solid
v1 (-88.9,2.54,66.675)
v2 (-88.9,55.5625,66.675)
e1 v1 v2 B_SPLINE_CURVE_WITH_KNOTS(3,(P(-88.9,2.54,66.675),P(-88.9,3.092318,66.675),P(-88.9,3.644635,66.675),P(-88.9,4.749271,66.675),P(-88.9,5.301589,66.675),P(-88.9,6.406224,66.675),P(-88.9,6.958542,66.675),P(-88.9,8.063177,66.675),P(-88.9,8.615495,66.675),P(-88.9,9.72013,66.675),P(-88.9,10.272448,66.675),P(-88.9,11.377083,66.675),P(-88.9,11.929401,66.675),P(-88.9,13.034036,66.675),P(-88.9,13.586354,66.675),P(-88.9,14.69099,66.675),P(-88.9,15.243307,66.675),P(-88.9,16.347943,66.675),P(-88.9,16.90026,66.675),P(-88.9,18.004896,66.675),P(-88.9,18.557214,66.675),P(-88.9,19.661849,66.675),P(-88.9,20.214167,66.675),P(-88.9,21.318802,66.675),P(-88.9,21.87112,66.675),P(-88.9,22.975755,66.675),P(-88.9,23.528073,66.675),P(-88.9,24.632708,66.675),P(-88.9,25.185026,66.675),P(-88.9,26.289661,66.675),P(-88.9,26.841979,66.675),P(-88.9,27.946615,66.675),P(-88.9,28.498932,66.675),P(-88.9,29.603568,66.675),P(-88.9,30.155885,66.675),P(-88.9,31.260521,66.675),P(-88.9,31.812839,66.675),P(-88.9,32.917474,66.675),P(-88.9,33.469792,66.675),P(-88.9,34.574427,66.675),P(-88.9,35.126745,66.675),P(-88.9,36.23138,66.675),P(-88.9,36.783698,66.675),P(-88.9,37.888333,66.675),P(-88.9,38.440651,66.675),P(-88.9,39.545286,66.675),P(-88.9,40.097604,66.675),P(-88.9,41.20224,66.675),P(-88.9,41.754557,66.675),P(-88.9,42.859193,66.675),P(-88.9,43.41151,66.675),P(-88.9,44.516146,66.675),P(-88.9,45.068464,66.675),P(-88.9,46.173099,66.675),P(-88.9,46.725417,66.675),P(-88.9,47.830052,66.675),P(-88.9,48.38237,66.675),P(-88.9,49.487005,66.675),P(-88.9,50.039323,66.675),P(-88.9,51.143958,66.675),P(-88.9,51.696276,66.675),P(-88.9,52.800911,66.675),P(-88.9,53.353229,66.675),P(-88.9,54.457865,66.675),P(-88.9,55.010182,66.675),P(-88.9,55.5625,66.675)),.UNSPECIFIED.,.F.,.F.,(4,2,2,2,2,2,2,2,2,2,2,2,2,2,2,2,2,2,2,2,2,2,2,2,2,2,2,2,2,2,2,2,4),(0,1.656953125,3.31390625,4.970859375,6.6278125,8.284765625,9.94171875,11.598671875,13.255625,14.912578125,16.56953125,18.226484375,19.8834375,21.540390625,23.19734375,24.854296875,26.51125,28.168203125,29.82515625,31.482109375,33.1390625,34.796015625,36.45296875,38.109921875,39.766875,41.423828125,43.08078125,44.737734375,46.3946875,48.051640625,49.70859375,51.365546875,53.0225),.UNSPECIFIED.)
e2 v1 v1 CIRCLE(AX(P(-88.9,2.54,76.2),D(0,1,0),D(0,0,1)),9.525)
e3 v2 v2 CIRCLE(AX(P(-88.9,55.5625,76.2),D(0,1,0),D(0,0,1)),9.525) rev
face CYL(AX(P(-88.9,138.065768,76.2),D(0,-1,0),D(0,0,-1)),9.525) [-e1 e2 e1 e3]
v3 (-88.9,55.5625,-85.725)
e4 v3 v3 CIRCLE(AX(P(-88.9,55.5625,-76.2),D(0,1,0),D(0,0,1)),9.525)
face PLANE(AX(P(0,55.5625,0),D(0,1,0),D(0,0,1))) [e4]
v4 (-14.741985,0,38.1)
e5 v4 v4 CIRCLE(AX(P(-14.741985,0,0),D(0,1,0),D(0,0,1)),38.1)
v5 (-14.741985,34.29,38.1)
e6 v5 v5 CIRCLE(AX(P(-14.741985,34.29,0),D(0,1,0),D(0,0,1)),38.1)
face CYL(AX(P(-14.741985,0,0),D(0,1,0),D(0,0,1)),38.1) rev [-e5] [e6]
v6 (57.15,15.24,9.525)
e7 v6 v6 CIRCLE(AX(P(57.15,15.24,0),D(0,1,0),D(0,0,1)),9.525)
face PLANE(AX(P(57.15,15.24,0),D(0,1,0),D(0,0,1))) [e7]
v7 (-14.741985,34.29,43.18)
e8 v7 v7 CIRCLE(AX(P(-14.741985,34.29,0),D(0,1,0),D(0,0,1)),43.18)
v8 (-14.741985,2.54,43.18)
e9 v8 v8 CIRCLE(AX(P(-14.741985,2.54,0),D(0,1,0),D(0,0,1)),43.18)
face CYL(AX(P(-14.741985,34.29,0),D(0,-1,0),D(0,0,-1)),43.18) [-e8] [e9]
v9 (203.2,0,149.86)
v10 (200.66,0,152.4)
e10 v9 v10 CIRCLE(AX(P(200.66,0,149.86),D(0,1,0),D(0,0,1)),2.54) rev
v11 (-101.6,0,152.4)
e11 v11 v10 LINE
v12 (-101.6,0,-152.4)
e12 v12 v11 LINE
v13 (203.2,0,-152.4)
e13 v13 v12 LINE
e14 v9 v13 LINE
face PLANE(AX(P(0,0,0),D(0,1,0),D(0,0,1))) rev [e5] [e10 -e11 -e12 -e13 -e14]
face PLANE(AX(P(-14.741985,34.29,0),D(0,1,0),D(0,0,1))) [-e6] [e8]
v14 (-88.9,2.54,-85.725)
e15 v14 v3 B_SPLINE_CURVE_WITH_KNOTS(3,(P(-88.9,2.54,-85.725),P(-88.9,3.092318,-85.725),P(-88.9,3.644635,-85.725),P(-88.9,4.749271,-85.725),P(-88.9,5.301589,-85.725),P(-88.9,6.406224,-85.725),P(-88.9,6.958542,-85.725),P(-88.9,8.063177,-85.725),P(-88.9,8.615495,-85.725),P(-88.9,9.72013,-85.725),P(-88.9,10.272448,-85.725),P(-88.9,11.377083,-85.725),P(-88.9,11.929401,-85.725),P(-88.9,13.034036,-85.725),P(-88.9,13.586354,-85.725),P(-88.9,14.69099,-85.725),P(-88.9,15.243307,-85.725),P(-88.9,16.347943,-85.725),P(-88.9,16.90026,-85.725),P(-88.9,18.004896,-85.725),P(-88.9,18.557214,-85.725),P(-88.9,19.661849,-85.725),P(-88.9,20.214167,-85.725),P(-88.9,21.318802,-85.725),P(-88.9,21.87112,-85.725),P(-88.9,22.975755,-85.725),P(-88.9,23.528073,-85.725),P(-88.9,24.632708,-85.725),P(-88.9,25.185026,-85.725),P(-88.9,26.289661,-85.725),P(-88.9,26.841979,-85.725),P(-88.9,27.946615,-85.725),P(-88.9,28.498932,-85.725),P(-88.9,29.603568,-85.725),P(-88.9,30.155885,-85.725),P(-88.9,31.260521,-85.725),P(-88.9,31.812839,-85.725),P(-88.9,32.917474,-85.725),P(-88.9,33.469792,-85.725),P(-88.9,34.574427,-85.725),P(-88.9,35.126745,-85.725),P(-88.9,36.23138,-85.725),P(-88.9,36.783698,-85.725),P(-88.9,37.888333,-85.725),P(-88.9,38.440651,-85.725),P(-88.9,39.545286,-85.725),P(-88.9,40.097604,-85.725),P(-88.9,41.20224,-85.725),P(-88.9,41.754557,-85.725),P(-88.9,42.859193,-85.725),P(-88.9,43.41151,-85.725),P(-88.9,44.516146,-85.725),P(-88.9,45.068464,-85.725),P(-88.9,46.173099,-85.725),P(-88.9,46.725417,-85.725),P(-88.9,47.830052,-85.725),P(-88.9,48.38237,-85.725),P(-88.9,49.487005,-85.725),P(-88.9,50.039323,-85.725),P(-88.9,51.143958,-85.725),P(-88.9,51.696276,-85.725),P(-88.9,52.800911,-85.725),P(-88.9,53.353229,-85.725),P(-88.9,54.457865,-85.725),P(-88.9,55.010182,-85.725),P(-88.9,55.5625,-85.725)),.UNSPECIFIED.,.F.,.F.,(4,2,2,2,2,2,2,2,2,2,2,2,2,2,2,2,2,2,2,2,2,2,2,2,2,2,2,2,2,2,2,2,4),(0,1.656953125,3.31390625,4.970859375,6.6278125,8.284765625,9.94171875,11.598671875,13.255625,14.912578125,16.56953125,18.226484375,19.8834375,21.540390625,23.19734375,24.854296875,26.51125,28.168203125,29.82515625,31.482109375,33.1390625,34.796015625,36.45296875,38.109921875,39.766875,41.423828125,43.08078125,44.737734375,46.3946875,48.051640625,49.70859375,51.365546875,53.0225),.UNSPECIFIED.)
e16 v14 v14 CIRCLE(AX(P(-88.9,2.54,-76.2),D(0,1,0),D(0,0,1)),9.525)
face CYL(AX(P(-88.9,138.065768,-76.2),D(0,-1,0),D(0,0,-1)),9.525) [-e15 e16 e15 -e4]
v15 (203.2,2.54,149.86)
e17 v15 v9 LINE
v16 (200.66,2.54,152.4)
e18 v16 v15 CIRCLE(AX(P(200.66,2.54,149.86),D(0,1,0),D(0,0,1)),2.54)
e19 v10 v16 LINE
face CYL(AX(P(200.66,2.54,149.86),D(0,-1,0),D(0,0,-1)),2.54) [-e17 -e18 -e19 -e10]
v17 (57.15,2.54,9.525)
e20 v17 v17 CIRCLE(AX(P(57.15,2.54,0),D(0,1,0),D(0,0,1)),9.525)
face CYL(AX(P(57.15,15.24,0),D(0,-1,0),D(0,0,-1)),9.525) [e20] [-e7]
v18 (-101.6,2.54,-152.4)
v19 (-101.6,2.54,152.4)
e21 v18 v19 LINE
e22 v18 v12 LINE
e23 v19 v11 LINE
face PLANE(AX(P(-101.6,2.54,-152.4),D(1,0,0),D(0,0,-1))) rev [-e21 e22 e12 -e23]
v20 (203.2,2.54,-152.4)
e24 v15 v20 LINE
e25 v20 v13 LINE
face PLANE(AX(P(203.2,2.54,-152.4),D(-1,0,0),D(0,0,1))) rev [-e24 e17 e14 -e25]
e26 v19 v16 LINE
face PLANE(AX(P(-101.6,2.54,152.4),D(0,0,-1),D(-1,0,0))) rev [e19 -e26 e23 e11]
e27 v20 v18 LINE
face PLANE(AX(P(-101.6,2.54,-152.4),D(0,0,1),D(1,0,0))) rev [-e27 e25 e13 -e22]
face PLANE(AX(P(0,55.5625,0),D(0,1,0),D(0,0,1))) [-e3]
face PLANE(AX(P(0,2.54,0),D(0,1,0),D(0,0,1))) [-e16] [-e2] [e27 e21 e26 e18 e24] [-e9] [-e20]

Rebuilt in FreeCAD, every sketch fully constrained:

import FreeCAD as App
import Part
import Sketcher

V = App.Vector
Q = App.Units.Quantity


def edges_at(feature, points):
    """Names of the edges that pass closest to the given points."""
    edges = feature.Shape.Edges
    near = lambda p: min(range(len(edges)), key=lambda i: edges[i].distToShape(Part.Vertex(*p))[0])
    return sorted({f"Edge{near(p) + 1}" for p in points})


def add_polygon(sketch, points):
    """Adds a closed chain of lines whose ends are joined by coincident constraints."""
    first, n = sketch.GeometryCount, len(points)
    for a, b in zip(points, points[1:] + points[:1]):
        sketch.addGeometry(Part.LineSegment(App.Vector(*a, 0), App.Vector(*b, 0)), False)
    for i in range(n):
        sketch.addConstraint(Sketcher.Constraint("Coincident", first + i, 2, first + (i + 1) % n, 1))

doc = App.newDocument("Part")
params = doc.addObject("Spreadsheet::Sheet", "Params")
for row, (alias, value) in enumerate([
    ("sketch1_width", "12 in"),
    ("pad1_length", "0.1 in"),
    ("sketch2_diameter", "0.75 in"),
    ("pad2_length", "0.5 in"),
    ("sketch3_diameter", "3 in"),
    ("sketch4_diameter", "0.75 in"),
    ("pad3_length", "2.0875 in"),
    ("fillet_radius", "0.1 in"),
    ("sketch5_diameter", "3 in"),
    ("sketch5_diameter2", "3.4 in"),
    ("pad4_length", "1.25 in"),
], start=1):
    params.set(f"A{row}", alias)
    params.set(f"B{row}", "=" + value)
    params.setAlias(f"B{row}", alias)

body = doc.addObject("PartDesign::Body", "Body")

# Sketch on XZ plane
sketch1 = body.newObject("Sketcher::SketchObject", "Sketch")
sketch1.AttachmentSupport = (doc.getObject("XZ_Plane"), [""])
sketch1.MapMode = "FlatFace"
add_polygon(sketch1, [(-102, -152), (-102, 152), (203, 152), (203, -152)])  # lines 0-3
sketch1.addConstraint(Sketcher.Constraint("Vertical", 0))
sketch1.addConstraint(Sketcher.Constraint("Horizontal", 1))
sketch1.addConstraint(Sketcher.Constraint("Vertical", 2))
sketch1.addConstraint(Sketcher.Constraint("Horizontal", 3))
sketch1.addConstraint(Sketcher.Constraint("Equal", 3, 0))
sketch1.addConstraint(Sketcher.Constraint("DistanceX", 1, 1, 1, 2, Q("12 in")))
sketch1.addConstraint(Sketcher.Constraint("DistanceX", 0, 2, -1, 1, Q("4 in")))
sketch1.addConstraint(Sketcher.Constraint("DistanceY", -1, 1, 0, 2, Q("6 in")))
sketch1.setExpression("Constraints[9]", "Params.sketch1_width")
pad1 = body.newObject("PartDesign::Pad", "Pad")
pad1.Profile = sketch1
pad1.setExpression("Length", "Params.pad1_length")
pad1.Reversed = True

# Sketch on XZ plane
sketch2 = body.newObject("Sketcher::SketchObject", "Sketch001")
sketch2.AttachmentSupport = (doc.getObject("XZ_Plane"), [""])
sketch2.MapMode = "FlatFace"
sketch2.AttachmentOffset = App.Placement(V(0, 0, -0.1 * 25.4), App.Rotation())
sketch2.addGeometry(Part.Circle(V(57, 0, 0), V(0, 0, 1), 10), False)
sketch2.addConstraint(Sketcher.Constraint("PointOnObject", 0, 3, -1))
sketch2.addConstraint(Sketcher.Constraint("Diameter", 0, Q("0.75 in")))
sketch2.addConstraint(Sketcher.Constraint("DistanceX", -1, 1, 0, 3, Q("2.25 in")))
sketch2.setExpression("Constraints[1]", "Params.sketch2_diameter")
pad2 = body.newObject("PartDesign::Pad", "Pad001")
pad2.Profile = sketch2
pad2.setExpression("Length", "Params.pad2_length")
pad2.Reversed = True

# Sketch on XZ plane
sketch3 = body.newObject("Sketcher::SketchObject", "Sketch002")
sketch3.AttachmentSupport = (doc.getObject("XZ_Plane"), [""])
sketch3.MapMode = "FlatFace"
sketch3.AttachmentOffset = App.Placement(V(0, 0, -0.1 * 25.4), App.Rotation())
sketch3.addGeometry(Part.Circle(V(-15, 0, 0), V(0, 0, 1), 38), False)
sketch3.addConstraint(Sketcher.Constraint("PointOnObject", 0, 3, -1))
sketch3.addConstraint(Sketcher.Constraint("Diameter", 0, Q("3 in")))
sketch3.addConstraint(Sketcher.Constraint("DistanceX", 0, 3, -1, 1, 14.741985))
sketch3.setExpression("Constraints[1]", "Params.sketch3_diameter")
pocket1 = body.newObject("PartDesign::Pocket", "Pocket")
pocket1.Profile = sketch3
pocket1.Type = "ThroughAll"
pocket1.Reversed = True

# Sketch on XZ plane
sketch4 = body.newObject("Sketcher::SketchObject", "Sketch003")
sketch4.AttachmentSupport = (doc.getObject("XZ_Plane"), [""])
sketch4.MapMode = "FlatFace"
sketch4.AttachmentOffset = App.Placement(V(0, 0, -0.1 * 25.4), App.Rotation())
sketch4.addGeometry(Part.Circle(V(-89, -76, 0), V(0, 0, 1), 10), False)
sketch4.addConstraint(Sketcher.Constraint("Diameter", 0, Q("0.75 in")))
sketch4.addConstraint(Sketcher.Constraint("DistanceY", 0, 3, -1, 1, Q("3 in")))
sketch4.addConstraint(Sketcher.Constraint("DistanceX", 0, 3, -1, 1, Q("3.5 in")))
sketch4.setExpression("Constraints[0]", "Params.sketch4_diameter")
pad3 = body.newObject("PartDesign::Pad", "Pad002")
pad3.Profile = sketch4
pad3.setExpression("Length", "Params.pad3_length")
pad3.Reversed = True
doc.recompute()

mirrored = body.newObject("PartDesign::Mirrored", "Mirrored")
mirrored.Originals = [pad3]
mirrored.MirrorPlane = (doc.getObject("XY_Plane"), [""])
body.Tip = mirrored
doc.recompute()

fillet = body.newObject("PartDesign::Fillet", "Fillet")
fillet.Base = (mirrored, edges_at(mirrored, [(203.2, 1.27, 152.4)]))
fillet.setExpression("Radius", "Params.fillet_radius")

# Sketch on XZ plane
sketch5 = body.newObject("Sketcher::SketchObject", "Sketch004")
sketch5.AttachmentSupport = (doc.getObject("XZ_Plane"), [""])
sketch5.MapMode = "FlatFace"
sketch5.AttachmentOffset = App.Placement(V(0, 0, -1.35 * 25.4), App.Rotation())
sketch5.addGeometry(Part.Circle(V(-15, 0, 0), V(0, 0, 1), 43), False)
sketch5.addGeometry(Part.Circle(V(-15, 0, 0), V(0, 0, 1), 38), False)
sketch5.addConstraint(Sketcher.Constraint("Coincident", 1, 3, 0, 3))
sketch5.addConstraint(Sketcher.Constraint("PointOnObject", 0, 3, -1))
sketch5.addConstraint(Sketcher.Constraint("Diameter", 1, Q("3 in")))
sketch5.addConstraint(Sketcher.Constraint("Diameter", 0, Q("3.4 in")))
sketch5.addConstraint(Sketcher.Constraint("DistanceX", 0, 3, -1, 1, 14.741985))
sketch5.setExpression("Constraints[2]", "Params.sketch5_diameter")
sketch5.setExpression("Constraints[3]", "Params.sketch5_diameter2")
pad4 = body.newObject("PartDesign::Pad", "Pad003")
pad4.Profile = sketch5
pad4.setExpression("Length", "Params.pad4_length")

doc.recompute()
